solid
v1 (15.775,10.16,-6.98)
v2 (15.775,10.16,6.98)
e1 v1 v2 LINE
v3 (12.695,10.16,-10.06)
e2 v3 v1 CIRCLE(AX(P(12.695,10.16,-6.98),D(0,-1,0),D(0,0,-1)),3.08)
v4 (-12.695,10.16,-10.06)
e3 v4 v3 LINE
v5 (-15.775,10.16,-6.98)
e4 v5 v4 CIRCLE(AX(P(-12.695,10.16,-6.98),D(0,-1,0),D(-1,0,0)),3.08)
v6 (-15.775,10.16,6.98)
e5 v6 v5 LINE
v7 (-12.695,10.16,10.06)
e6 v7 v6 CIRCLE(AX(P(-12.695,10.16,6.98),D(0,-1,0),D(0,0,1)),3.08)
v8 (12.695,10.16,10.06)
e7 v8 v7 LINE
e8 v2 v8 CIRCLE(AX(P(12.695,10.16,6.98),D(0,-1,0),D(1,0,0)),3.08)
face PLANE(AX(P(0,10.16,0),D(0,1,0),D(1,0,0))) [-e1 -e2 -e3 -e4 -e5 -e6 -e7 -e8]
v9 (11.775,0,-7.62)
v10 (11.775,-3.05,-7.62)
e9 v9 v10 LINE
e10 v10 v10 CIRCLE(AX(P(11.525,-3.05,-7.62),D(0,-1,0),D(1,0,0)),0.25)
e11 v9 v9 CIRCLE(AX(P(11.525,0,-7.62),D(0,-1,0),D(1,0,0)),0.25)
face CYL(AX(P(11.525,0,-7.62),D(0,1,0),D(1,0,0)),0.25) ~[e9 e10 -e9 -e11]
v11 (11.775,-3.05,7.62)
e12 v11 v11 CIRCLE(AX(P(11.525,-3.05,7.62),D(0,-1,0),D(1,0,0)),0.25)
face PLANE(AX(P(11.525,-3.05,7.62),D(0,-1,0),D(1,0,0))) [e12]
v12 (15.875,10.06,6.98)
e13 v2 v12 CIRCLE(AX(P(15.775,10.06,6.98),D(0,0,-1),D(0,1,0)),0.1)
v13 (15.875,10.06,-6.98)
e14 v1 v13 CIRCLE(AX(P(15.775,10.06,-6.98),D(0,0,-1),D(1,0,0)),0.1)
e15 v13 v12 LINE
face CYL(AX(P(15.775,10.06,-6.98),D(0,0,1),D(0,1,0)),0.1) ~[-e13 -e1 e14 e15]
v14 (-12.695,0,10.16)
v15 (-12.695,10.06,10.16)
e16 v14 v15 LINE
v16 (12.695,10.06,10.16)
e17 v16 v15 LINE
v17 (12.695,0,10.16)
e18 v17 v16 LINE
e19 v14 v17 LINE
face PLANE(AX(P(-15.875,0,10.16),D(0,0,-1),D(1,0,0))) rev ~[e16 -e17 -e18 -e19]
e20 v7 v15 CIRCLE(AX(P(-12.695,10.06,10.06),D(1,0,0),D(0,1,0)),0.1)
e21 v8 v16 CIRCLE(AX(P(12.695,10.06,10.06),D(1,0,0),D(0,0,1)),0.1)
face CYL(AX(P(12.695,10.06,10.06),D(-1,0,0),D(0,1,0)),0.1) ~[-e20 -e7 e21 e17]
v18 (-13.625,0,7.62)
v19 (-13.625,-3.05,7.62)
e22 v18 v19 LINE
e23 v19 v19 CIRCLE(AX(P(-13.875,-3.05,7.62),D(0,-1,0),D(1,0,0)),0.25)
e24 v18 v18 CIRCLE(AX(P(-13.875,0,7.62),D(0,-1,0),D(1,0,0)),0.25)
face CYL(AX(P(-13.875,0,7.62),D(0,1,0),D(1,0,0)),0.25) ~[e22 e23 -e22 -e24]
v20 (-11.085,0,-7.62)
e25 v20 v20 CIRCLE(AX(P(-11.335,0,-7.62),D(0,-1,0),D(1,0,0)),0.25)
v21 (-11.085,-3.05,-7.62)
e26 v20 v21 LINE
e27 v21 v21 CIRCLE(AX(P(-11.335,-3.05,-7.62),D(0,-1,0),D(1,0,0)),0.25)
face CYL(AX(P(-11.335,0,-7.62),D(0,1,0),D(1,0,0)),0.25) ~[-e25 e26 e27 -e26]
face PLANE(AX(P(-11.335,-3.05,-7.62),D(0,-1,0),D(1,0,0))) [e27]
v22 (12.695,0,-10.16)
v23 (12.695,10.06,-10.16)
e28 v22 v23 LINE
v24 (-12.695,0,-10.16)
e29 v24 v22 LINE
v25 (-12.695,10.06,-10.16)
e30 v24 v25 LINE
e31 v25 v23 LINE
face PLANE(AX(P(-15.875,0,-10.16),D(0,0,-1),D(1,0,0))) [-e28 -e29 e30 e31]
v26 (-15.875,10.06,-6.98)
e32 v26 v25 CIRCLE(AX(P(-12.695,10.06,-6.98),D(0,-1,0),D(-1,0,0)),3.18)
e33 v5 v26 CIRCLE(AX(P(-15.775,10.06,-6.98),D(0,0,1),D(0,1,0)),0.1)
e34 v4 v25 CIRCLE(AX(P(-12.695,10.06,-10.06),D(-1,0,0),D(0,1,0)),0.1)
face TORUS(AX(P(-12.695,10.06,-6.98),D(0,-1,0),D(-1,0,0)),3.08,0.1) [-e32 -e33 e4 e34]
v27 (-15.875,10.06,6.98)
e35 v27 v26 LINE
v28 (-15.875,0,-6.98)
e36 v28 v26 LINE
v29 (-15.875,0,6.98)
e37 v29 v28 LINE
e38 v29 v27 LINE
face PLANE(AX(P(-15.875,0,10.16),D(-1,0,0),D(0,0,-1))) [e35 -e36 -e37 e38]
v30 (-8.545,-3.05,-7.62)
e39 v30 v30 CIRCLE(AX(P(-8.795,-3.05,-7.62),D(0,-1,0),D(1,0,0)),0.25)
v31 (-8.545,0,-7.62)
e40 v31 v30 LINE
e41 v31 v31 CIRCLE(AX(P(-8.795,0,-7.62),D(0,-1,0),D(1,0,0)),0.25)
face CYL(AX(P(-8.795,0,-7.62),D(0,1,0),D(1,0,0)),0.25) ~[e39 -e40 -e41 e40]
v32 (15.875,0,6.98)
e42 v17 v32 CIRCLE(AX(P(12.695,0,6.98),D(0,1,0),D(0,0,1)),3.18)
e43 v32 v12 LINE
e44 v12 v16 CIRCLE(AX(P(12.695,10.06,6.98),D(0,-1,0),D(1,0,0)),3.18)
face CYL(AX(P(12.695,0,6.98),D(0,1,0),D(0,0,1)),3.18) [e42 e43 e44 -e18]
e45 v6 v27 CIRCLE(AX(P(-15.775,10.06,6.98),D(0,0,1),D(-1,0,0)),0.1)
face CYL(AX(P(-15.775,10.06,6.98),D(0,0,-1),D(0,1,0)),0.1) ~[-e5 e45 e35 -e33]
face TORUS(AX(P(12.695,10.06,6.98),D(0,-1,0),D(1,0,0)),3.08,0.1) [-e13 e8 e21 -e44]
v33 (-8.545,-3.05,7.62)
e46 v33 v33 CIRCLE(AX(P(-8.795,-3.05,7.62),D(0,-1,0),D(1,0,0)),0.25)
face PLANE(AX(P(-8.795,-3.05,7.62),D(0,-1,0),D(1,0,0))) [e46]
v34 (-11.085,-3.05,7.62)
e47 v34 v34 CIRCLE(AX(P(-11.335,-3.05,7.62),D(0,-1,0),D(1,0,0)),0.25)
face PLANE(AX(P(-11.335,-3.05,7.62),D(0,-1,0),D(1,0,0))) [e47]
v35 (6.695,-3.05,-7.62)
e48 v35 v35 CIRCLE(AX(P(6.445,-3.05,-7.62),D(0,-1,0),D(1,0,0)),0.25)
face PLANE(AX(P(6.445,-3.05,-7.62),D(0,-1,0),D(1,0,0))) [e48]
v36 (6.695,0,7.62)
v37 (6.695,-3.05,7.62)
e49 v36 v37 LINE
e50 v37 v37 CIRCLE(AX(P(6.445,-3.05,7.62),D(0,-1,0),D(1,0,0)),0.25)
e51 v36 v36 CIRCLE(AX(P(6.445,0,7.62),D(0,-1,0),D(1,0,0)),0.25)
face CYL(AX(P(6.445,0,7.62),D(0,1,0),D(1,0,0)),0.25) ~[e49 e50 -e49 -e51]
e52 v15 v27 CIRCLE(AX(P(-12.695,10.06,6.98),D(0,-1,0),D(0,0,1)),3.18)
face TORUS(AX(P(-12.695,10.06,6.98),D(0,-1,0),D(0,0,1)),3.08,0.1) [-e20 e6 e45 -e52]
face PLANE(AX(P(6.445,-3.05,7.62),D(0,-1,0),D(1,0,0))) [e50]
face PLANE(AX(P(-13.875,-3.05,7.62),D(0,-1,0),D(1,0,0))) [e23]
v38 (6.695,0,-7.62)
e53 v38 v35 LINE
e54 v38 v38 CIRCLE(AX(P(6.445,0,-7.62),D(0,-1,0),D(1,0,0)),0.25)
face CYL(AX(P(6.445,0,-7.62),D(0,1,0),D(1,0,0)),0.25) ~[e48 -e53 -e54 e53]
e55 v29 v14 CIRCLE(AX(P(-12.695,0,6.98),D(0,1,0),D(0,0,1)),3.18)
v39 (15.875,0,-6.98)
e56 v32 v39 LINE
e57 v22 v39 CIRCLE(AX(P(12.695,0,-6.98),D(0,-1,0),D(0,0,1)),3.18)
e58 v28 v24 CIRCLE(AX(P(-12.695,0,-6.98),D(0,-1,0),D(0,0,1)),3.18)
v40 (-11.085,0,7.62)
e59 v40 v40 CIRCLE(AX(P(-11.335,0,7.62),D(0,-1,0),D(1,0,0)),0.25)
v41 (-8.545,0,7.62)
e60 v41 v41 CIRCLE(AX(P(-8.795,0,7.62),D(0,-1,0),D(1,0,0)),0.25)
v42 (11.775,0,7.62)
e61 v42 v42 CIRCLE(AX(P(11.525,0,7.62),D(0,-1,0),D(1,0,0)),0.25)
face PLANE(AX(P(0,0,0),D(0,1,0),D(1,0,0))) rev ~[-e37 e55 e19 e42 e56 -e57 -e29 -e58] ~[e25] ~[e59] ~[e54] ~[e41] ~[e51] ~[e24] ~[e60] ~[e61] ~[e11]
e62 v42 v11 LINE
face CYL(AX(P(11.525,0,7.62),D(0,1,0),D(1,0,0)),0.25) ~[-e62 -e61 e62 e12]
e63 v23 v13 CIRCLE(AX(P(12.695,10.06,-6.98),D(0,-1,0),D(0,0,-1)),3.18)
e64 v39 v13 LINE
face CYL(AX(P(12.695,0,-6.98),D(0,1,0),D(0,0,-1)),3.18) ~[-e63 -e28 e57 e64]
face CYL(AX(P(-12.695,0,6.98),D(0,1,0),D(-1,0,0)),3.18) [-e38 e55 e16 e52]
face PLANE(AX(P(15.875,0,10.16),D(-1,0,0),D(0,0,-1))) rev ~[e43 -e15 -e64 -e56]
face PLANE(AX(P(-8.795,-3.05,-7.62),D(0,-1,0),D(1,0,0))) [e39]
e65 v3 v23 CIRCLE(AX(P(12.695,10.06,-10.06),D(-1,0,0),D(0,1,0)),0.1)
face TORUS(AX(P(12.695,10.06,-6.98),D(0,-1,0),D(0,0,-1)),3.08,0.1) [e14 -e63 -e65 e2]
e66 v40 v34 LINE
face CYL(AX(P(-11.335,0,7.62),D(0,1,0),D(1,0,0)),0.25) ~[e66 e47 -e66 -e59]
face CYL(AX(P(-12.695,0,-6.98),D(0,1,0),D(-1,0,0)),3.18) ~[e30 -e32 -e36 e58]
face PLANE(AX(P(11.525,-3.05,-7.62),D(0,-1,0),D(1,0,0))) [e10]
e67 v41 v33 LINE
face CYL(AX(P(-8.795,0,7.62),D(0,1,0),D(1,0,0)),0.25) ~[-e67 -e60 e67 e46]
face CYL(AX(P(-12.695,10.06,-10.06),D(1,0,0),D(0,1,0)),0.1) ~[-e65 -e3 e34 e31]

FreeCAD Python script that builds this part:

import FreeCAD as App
import Part
import Sketcher
Q = App.Units.Quantity


def edges_at(feature, points):
    """Names of the edges that pass closest to the given points."""
    edges = feature.Shape.Edges
    near = lambda p: min(range(len(edges)), key=lambda i: edges[i].distToShape(Part.Vertex(*p))[0])
    return sorted({f"Edge{near(p) + 1}" for p in points})


def add_polygon(sketch, points):
    """Adds a closed chain of lines whose ends are joined by coincident constraints."""
    first, n = sketch.GeometryCount, len(points)
    for a, b in zip(points, points[1:] + points[:1]):
        sketch.addGeometry(Part.LineSegment(App.Vector(*a, 0), App.Vector(*b, 0)), False)
    for i in range(n):
        sketch.addConstraint(Sketcher.Constraint("Coincident", first + i, 2, first + (i + 1) % n, 1))

doc = App.newDocument("Part")
params = doc.addObject("Spreadsheet::Sheet", "Params")
for row, (alias, value) in enumerate([
    ("sketch1_height", "0.8 in"),
    ("sketch1_width", "1.25 in"),
    ("pad1_length", "0.4 in"),
    ("pad2_length", "3.05 mm"),
    ("fillet_radius", "3.18 mm"),
    ("fillet2_radius", "0.1 mm"),
], start=1):
    params.set(f"A{row}", alias)
    params.set(f"B{row}", "=" + value)
    params.setAlias(f"B{row}", alias)

body = doc.addObject("PartDesign::Body", "Body")

# Sketch on XZ plane
sketch1 = body.newObject("Sketcher::SketchObject", "Sketch")
sketch1.AttachmentSupport = (doc.getObject("XZ_Plane"), [""])
sketch1.MapMode = "FlatFace"
add_polygon(sketch1, [(-15.875, -10.16), (-15.875, 10.16), (15.875, 10.16), (15.875, -10.16)])  # lines 0-3
sketch1.addConstraint(Sketcher.Constraint("Vertical", 0))
sketch1.addConstraint(Sketcher.Constraint("Horizontal", 1))
sketch1.addConstraint(Sketcher.Constraint("Vertical", 2))
sketch1.addConstraint(Sketcher.Constraint("Horizontal", 3))
sketch1.addConstraint(Sketcher.Constraint("Symmetric", 0, 2, 2, 2, -1, 1))
sketch1.addConstraint(Sketcher.Constraint("DistanceY", 0, 1, 0, 2, Q("0.8 in")))
sketch1.addConstraint(Sketcher.Constraint("DistanceX", 1, 1, 1, 2, Q("1.25 in")))
sketch1.setExpression("Constraints[9]", "Params.sketch1_height")
sketch1.setExpression("Constraints[10]", "Params.sketch1_width")
pad1 = body.newObject("PartDesign::Pad", "Pad")
pad1.Profile = sketch1
pad1.setExpression("Length", "Params.pad1_length")
pad1.Reversed = True

# Sketch on XZ plane
sketch2 = body.newObject("Sketcher::SketchObject", "Sketch001")
sketch2.AttachmentSupport = (doc.getObject("XZ_Plane"), [""])
sketch2.MapMode = "FlatFace"
sketch2.addGeometry(Part.Circle(App.Vector(-13.875, 7.62, 0), App.Vector(0, 0, 1), 0.25), False)
sketch2.addGeometry(Part.Circle(App.Vector(-11.335, 7.62, 0), App.Vector(0, 0, 1), 0.25), False)
sketch2.addGeometry(Part.Circle(App.Vector(-8.795, 7.62, 0), App.Vector(0, 0, 1), 0.25), False)
sketch2.addGeometry(Part.Circle(App.Vector(6.445, 7.62, 0), App.Vector(0, 0, 1), 0.25), False)
sketch2.addGeometry(Part.Circle(App.Vector(11.525, 7.62, 0), App.Vector(0, 0, 1), 0.25), False)
sketch2.addGeometry(Part.Circle(App.Vector(11.525, -7.62, 0), App.Vector(0, 0, 1), 0.25), False)
sketch2.addGeometry(Part.Circle(App.Vector(6.445, -7.62, 0), App.Vector(0, 0, 1), 0.25), False)
sketch2.addGeometry(Part.Circle(App.Vector(-8.795, -7.62, 0), App.Vector(0, 0, 1), 0.25), False)
sketch2.addGeometry(Part.Circle(App.Vector(-11.335, -7.62, 0), App.Vector(0, 0, 1), 0.25), False)
sketch2.addConstraint(Sketcher.Constraint("Equal", 0, 1))
sketch2.addConstraint(Sketcher.Constraint("Equal", 1, 2))
sketch2.addConstraint(Sketcher.Constraint("Equal", 2, 3))
sketch2.addConstraint(Sketcher.Constraint("Equal", 3, 4))
sketch2.addConstraint(Sketcher.Constraint("Equal", 4, 5))
sketch2.addConstraint(Sketcher.Constraint("Equal", 5, 6))
sketch2.addConstraint(Sketcher.Constraint("Equal", 6, 7))
sketch2.addConstraint(Sketcher.Constraint("Equal", 7, 8))
sketch2.addConstraint(Sketcher.Constraint("Symmetric", 4, 3, 5, 3, -1))
sketch2.addConstraint(Sketcher.Constraint("Symmetric", 3, 3, 6, 3, -1))
sketch2.addConstraint(Sketcher.Constraint("Symmetric", 2, 3, 7, 3, -1))
sketch2.addConstraint(Sketcher.Constraint("Symmetric", 1, 3, 8, 3, -1))
sketch2.addConstraint(Sketcher.Constraint("Horizontal", 0, 3, 1, 3))
sketch2.addConstraint(Sketcher.Constraint("Horizontal", 1, 3, 2, 3))
sketch2.addConstraint(Sketcher.Constraint("Horizontal", 2, 3, 3, 3))
sketch2.addConstraint(Sketcher.Constraint("Horizontal", 3, 3, 4, 3))
sketch2.addConstraint(Sketcher.Constraint("DistanceX", 0, 3, 4, 3, Q("1 in")))
sketch2.addConstraint(Sketcher.Constraint("DistanceY", -1, 1, 0, 3, Q("0.3 in")))
sketch2.addConstraint(Sketcher.Constraint("DistanceX", 0, 3, 1, 3, Q("0.1 in")))
sketch2.addConstraint(Sketcher.Constraint("DistanceX", 1, 3, 2, 3, Q("0.1 in")))
sketch2.addConstraint(Sketcher.Constraint("DistanceX", 2, 3, 3, 3, Q("0.6 in")))
sketch2.addConstraint(Sketcher.Constraint("Diameter", 0, 0.5))
sketch2.addConstraint(Sketcher.Constraint("DistanceX", 0, 3, -1, 1, 13.875))
pad2 = body.newObject("PartDesign::Pad", "Pad001")
pad2.Profile = sketch2
pad2.setExpression("Length", "Params.pad2_length")
doc.recompute()

fillet = body.newObject("PartDesign::Fillet", "Fillet")
fillet.Base = (pad2, edges_at(pad2, [
    (-15.875, 5.08, -10.16),
    (15.875, 5.08, -10.16),
    (15.875, 5.08, 10.16),
    (-15.875, 5.08, 10.16),
]))
fillet.setExpression("Radius", "Params.fillet_radius")
doc.recompute()

fillet2 = body.newObject("PartDesign::Fillet", "Fillet001")
fillet2.Base = (fillet, edges_at(fillet, [
    (0, 10.16, -10.16),
    (15.875, 10.16, 0),
    (-15.875, 10.16, 0),
    (0, 10.16, 10.16),
    (-14.944, 10.16, 9.229),
    (-14.944, 10.16, -9.229),
    (14.944, 10.16, 9.229),
    (14.944, 10.16, -9.229),
]))
fillet2.setExpression("Radius", "Params.fillet2_radius")

doc.recompute()
